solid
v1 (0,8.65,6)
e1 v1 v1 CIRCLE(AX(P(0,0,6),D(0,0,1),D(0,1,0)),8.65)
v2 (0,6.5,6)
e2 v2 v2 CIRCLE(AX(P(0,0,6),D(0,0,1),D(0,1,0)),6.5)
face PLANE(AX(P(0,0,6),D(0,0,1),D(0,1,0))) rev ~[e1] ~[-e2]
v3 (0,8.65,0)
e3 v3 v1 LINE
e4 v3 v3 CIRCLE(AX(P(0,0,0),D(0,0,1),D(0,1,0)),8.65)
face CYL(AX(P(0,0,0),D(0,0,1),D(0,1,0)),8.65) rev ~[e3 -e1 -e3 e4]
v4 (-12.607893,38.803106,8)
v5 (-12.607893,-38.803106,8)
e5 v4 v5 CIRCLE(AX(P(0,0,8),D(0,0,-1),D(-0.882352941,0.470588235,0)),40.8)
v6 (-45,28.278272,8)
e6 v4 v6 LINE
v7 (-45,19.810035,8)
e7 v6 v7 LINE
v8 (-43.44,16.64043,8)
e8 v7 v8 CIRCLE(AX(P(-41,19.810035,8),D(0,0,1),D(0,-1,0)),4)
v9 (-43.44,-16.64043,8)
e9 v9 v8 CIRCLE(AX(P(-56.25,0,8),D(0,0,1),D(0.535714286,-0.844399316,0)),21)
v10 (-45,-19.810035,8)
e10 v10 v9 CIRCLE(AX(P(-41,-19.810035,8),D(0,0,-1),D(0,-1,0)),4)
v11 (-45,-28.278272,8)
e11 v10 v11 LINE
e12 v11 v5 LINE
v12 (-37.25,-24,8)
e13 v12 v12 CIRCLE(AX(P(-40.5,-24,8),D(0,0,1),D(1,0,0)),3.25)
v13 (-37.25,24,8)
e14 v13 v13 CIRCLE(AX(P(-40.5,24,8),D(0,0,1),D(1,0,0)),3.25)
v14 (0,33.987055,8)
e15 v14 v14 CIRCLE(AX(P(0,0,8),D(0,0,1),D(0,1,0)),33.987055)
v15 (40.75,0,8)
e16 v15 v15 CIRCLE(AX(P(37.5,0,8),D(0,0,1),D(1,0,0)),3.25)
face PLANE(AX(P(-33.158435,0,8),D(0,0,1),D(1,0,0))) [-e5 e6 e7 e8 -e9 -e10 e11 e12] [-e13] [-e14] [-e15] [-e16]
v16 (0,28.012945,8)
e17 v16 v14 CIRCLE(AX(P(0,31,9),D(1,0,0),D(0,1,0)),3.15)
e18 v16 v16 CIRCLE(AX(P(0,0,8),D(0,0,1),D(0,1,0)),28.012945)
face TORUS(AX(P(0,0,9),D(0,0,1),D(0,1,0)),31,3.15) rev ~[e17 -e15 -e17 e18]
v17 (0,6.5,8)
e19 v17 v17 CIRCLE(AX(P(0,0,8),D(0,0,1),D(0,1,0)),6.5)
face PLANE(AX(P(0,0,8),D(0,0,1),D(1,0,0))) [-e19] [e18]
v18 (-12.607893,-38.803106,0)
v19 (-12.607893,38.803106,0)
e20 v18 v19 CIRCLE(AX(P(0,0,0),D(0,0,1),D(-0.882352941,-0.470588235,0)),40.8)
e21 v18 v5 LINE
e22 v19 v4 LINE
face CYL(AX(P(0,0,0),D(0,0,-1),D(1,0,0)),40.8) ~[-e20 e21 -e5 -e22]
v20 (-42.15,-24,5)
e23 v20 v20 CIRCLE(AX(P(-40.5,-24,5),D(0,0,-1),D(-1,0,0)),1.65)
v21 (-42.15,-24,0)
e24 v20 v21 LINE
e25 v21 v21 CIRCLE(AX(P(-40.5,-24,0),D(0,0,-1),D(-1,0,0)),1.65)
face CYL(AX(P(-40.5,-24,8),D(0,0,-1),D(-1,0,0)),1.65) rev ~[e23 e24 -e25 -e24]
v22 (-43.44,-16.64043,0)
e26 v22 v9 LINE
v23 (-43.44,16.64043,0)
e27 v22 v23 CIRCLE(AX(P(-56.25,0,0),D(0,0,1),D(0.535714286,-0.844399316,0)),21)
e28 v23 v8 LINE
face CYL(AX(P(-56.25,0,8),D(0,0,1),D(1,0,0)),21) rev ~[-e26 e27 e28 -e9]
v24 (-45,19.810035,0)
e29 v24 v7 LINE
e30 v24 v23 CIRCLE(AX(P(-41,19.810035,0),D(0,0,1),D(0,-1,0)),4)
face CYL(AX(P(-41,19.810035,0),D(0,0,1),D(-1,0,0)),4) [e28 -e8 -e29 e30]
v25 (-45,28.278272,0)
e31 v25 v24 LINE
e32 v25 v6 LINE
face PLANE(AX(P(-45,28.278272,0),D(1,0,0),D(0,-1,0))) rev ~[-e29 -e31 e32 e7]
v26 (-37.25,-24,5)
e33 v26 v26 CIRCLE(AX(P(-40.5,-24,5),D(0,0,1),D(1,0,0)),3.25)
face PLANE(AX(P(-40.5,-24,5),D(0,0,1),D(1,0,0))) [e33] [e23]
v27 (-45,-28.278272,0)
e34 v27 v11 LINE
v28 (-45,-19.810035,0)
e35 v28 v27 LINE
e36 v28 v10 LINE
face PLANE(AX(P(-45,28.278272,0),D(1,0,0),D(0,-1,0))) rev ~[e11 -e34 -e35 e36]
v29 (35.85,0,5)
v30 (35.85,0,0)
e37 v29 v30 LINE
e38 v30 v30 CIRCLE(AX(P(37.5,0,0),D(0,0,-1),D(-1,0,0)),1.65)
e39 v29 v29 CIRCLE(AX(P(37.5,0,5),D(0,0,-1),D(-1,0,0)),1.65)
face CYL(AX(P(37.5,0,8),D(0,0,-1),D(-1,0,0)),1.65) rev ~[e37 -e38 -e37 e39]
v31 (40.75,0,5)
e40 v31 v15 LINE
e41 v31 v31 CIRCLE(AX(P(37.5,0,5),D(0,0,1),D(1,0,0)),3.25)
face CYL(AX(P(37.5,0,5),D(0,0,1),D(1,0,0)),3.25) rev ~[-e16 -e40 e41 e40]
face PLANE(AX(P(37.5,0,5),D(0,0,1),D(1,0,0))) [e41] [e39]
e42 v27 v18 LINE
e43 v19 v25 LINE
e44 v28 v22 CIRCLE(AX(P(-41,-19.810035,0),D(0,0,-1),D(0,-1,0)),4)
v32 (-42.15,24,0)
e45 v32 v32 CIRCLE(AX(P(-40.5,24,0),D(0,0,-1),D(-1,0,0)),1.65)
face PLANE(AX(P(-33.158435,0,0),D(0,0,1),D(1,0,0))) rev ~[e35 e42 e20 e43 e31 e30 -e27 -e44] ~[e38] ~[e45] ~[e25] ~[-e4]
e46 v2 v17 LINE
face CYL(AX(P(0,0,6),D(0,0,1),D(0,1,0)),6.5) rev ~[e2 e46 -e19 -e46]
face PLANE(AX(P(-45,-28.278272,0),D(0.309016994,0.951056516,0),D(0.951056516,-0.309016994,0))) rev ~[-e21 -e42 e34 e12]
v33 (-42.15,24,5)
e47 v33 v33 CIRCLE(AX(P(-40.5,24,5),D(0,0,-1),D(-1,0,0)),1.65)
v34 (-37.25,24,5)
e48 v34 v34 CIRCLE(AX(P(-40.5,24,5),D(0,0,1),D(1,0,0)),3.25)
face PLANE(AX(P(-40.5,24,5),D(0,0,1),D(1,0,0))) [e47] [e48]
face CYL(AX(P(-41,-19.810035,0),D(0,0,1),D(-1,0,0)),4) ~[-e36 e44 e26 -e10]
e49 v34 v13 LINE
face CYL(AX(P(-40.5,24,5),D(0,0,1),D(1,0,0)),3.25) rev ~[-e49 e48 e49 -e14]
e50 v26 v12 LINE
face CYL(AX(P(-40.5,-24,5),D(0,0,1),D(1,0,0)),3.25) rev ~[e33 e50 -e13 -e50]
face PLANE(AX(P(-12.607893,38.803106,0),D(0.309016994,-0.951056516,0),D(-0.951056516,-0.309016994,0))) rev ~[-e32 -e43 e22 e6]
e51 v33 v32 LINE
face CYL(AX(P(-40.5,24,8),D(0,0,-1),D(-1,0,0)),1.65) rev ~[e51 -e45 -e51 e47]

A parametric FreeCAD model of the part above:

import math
import FreeCAD as App
import Part
import Sketcher

V = App.Vector
Q = App.Units.Quantity


def edges_at(feature, points):
    """Names of the edges that pass closest to the given points."""
    edges = feature.Shape.Edges
    near = lambda p: min(range(len(edges)), key=lambda i: edges[i].distToShape(Part.Vertex(*p))[0])
    return sorted({f"Edge{near(p) + 1}" for p in points})


def add_polygon(sketch, points):
    """Adds a closed chain of lines whose ends are joined by coincident constraints."""
    first, n = sketch.GeometryCount, len(points)
    for a, b in zip(points, points[1:] + points[:1]):
        sketch.addGeometry(Part.LineSegment(App.Vector(*a, 0), App.Vector(*b, 0)), False)
    for i in range(n):
        sketch.addConstraint(Sketcher.Constraint("Coincident", first + i, 2, first + (i + 1) % n, 1))

doc = App.newDocument("Part")
body = doc.addObject("PartDesign::Body", "Body")

sketch1 = doc.addObject("Sketcher::SketchObject", "Sketch")
body.addObject(sketch1)
sketch1.AttachmentSupport = (doc.XY_Plane, [""])
sketch1.MapMode = "FlatFace"
sketch1.addGeometry(Part.Circle(V(0, 0, 0), V(0, 0, 1), 41), False)
sketch1.addConstraint([
    Sketcher.Constraint("Coincident", 0, 3, -1, 1),
    Sketcher.Constraint("Diameter", 0, Q("81.6 mm")),
])
pad1 = doc.addObject("PartDesign::Pad", "Pad")
body.addObject(pad1)
pad1.Profile = sketch1
pad1.Length = 8

sketch2 = doc.addObject("Sketcher::SketchObject", "Sketch001")
body.addObject(sketch2)
sketch2.AttachmentSupport = (doc.YZ_Plane, [""])
sketch2.MapMode = "FlatFace"
add_polygon(sketch2, [(0, 8), (0, 0), (8.7, 0), (8.7, 6), (6.5, 6), (6.5, 8)])
sketch2.addConstraint([
    Sketcher.Constraint("Vertical", 0),
    Sketcher.Constraint("Horizontal", 1),
    Sketcher.Constraint("Vertical", 2),
    Sketcher.Constraint("Horizontal", 3),
    Sketcher.Constraint("Vertical", 4),
    Sketcher.Constraint("Horizontal", 5),
    Sketcher.Constraint("Coincident", 0, 2, -1, 1),
    Sketcher.Constraint("DistanceY", 0, 2, 0, 1, Q("8 mm")),
    Sketcher.Constraint("DistanceY", 2, 1, 2, 2, Q("6 mm")),
    Sketcher.Constraint("DistanceX", 5, 2, 5, 1, Q("6.5 mm")),
    Sketcher.Constraint("DistanceX", 1, 1, 1, 2, Q("8.65 mm")),
])
groove = doc.addObject("PartDesign::Groove", "Groove")
body.addObject(groove)
groove.Profile = sketch2
groove.ReferenceAxis = (sketch2, ["V_Axis"])
groove.Angle = 360

sketch3 = doc.addObject("Sketcher::SketchObject", "Sketch002")
body.addObject(sketch3)
sketch3.AttachmentSupport = (doc.YZ_Plane, [""])
sketch3.MapMode = "FlatFace"
sketch3.addGeometry(Part.Circle(V(31, 9, 0), V(0, 0, 1), 3.1), False)
sketch3.addConstraint([
    Sketcher.Constraint("Diameter", 0, Q("6.3 mm")),
    Sketcher.Constraint("DistanceX", -1, 1, 0, 3, Q("31 mm")),
    Sketcher.Constraint("DistanceY", -1, 1, 0, 3, Q("9 mm")),
])
groove2 = doc.addObject("PartDesign::Groove", "Groove001")
body.addObject(groove2)
groove2.Profile = sketch3
groove2.ReferenceAxis = (sketch3, ["V_Axis"])
groove2.Angle = 360

sketch4 = doc.addObject("Sketcher::SketchObject", "Sketch003")
body.addObject(sketch4)
sketch4.AttachmentSupport = (doc.XY_Plane, [""])
sketch4.MapMode = "FlatFace"
add_polygon(sketch4, [(-40.8, 19.2), (-40.8, -19.2), (-36, -19.2), (-36, 19.2)])
sketch4.addConstraint([
    Sketcher.Constraint("Vertical", 0),
    Sketcher.Constraint("Horizontal", 1),
    Sketcher.Constraint("Vertical", 2),
    Sketcher.Constraint("Horizontal", 3),
    Sketcher.Constraint("DistanceX", 1, 1, 1, 2, Q("4.8 mm")),
    Sketcher.Constraint("DistanceY", 0, 2, 0, 1, Q("38.4 mm")),
    Sketcher.Constraint("DistanceX", 1, 2, -1, 1, Q("36 mm")),
    Sketcher.Constraint("DistanceY", 0, 2, -1, 1, Q("19.2 mm")),
])
pocket1 = doc.addObject("PartDesign::Pocket", "Pocket")
body.addObject(pocket1)
pocket1.Profile = sketch4
pocket1.Type = "ThroughAll"
pocket1.Reversed = True

sketch5 = doc.addObject("Sketcher::SketchObject", "Sketch004")
body.addObject(sketch5)
sketch5.AttachmentSupport = (doc.XY_Plane, [""])
sketch5.MapMode = "FlatFace"
sketch5.addGeometry([
    Part.LineSegment(V(-45, 28, 0), V(-45, -28, 0)),
    Part.LineSegment(V(-45, -28, 0), V(-13, -39, 0)),
    Part.ArcOfCircle(Part.Circle(V(0, 0, 0), V(0, 0, 1), 41), math.radians(-152), math.radians(-108)),
    Part.LineSegment(V(-36, -19, 0), V(-36, 19, 0)),
    Part.ArcOfCircle(Part.Circle(V(0, 0, 0), V(0, 0, 1), 41), math.radians(108), math.radians(152)),
    Part.LineSegment(V(-13, 39, 0), V(-45, 28, 0)),
], False)
sketch5.addConstraint([
    Sketcher.Constraint("Coincident", 0, 2, 1, 1),
    Sketcher.Constraint("Tangent", 1, 2, 2, 2),
    Sketcher.Constraint("Coincident", 2, 1, 3, 1),
    Sketcher.Constraint("Coincident", 3, 2, 4, 2),
    Sketcher.Constraint("Tangent", 4, 1, 5, 1),
    Sketcher.Constraint("Coincident", 5, 2, 0, 1),
    Sketcher.Constraint("Vertical", 0),
    Sketcher.Constraint("Vertical", 3),
    Sketcher.Constraint("Coincident", 2, 3, -1, 1),
    Sketcher.Constraint("Coincident", 4, 3, -1, 1),
    Sketcher.Constraint("Equal", 2, 4),
    Sketcher.Constraint("Vertical", 1, 2, 4, 1),
    Sketcher.Constraint("Radius", 2, Q("40.8 mm")),
    Sketcher.Constraint("Angle", 1, Q("-18 deg")),
    Sketcher.Constraint("DistanceY", 3, 1, 3, 2, Q("38.4 mm")),
    Sketcher.Constraint("DistanceX", 0, 2, -1, 1, Q("45 mm")),
])
pad2 = doc.addObject("PartDesign::Pad", "Pad001")
body.addObject(pad2)
pad2.Profile = sketch5
pad2.Length = 8

sketch6 = doc.addObject("Sketcher::SketchObject", "Sketch005")
body.addObject(sketch6)
sketch6.AttachmentSupport = (doc.XY_Plane, [""])
sketch6.MapMode = "FlatFace"
sketch6.AttachmentOffset = App.Placement(V(0, 0, 8), App.Rotation())
sketch6.addGeometry(Part.Circle(V(-56, 0, 0), V(0, 0, 1), 21), False)
sketch6.addConstraint([
    Sketcher.Constraint("PointOnObject", 0, 3, -1),
    Sketcher.Constraint("Diameter", 0, Q("42 mm")),
    Sketcher.Constraint("DistanceX", 0, 3, -1, 1, Q("56.25 mm")),
])
pocket2 = doc.addObject("PartDesign::Pocket", "Pocket001")
body.addObject(pocket2)
pocket2.Profile = sketch6
pocket2.Type = "ThroughAll"
doc.recompute()

fillet = doc.addObject("PartDesign::Fillet", "Fillet")
body.addObject(fillet)
fillet.Base = (pocket2, edges_at(pocket2, [(-45, -17.732, 4), (-45, 17.732, 4)]))
fillet.Radius = 4

sketch7 = doc.addObject("Sketcher::SketchObject", "Sketch006")
body.addObject(sketch7)
sketch7.AttachmentSupport = (doc.XY_Plane, [""])
sketch7.MapMode = "FlatFace"
sketch7.AttachmentOffset = App.Placement(V(0, 0, 8), App.Rotation())
sketch7.addGeometry([
    Part.Circle(V(-40.5, 24, 0), V(0, 0, 1), 1.6),
    Part.Circle(V(-40.5, -24, 0), V(0, 0, 1), 1.6),
    Part.Circle(V(37.5, 0, 0), V(0, 0, 1), 1.6),
], False)
sketch7.addConstraint([
    Sketcher.Constraint("Equal", 0, 1),
    Sketcher.Constraint("Equal", 1, 2),
    Sketcher.Constraint("Symmetric", 0, 3, 1, 3, -1),
    Sketcher.Constraint("PointOnObject", 2, 3, -1),
    Sketcher.Constraint("Diameter", 0, Q("3.3 mm")),
    Sketcher.Constraint("DistanceY", -1, 1, 0, 3, Q("24 mm")),
    Sketcher.Constraint("DistanceX", 0, 3, 2, 3, Q("78 mm")),
    Sketcher.Constraint("DistanceX", 0, 3, -1, 1, Q("40.5 mm")),
])
doc.recompute()
hole = doc.addObject("PartDesign::Hole", "Hole")
body.addObject(hole)
hole.Profile = sketch7
hole.ThreadType = "None"
hole.Diameter = 3.3
hole.DepthType = "ThroughAll"
hole.HoleCutType = "Counterbore"
hole.HoleCutDiameter = 6.5
hole.HoleCutDepth = 3

doc.recompute()
